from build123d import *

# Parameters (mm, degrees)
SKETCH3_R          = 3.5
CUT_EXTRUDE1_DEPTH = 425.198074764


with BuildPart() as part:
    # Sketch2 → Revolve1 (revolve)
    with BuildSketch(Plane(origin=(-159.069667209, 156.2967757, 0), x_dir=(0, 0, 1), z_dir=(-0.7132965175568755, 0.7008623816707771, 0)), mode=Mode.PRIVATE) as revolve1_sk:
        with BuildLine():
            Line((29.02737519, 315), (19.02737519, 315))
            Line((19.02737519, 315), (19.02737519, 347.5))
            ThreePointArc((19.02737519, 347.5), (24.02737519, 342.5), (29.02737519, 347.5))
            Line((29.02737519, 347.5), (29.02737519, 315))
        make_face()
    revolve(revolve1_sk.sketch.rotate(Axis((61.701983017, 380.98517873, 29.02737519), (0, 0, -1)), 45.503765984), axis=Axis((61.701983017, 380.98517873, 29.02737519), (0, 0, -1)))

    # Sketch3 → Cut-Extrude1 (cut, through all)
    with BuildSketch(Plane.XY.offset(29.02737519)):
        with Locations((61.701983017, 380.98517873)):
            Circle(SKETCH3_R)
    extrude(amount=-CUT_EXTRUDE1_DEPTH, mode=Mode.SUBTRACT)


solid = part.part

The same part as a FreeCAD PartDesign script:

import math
import FreeCAD as App
import Part
import Sketcher
from FreeCAD import Vector
Q = App.Units.Quantity

doc = App.newDocument("Part")
body = doc.addObject("PartDesign::Body", "Body")

sketch1 = body.newObject("Sketcher::SketchObject", "Sketch")
sketch1.Placement = App.Placement(Vector(-159.069667, 156.296776, 0), App.Rotation(Vector(0, 0, 1), Vector(0.700862382, 0.713296518, 0), Vector(-0.713296518, 0.700862382, 0), "ZXY"))
sketch1.addGeometry([
    Part.LineSegment(Vector(19.027375, 315, 0), Vector(29.027375, 315, 0)),
    Part.LineSegment(Vector(29.027375, 315, 0), Vector(29.027375, 347.5, 0)),
    Part.ArcOfCircle(Part.Circle(Vector(24.027375, 347.5, 0), Vector(0, 0, 1), 5), math.radians(180), math.radians(360)),
    Part.LineSegment(Vector(19.027375, 347.5, 0), Vector(19.027375, 315, 0)),
], False)
sketch1.addGeometry(Part.LineSegment(Vector(29.027375, 315, 0), Vector(19.027375, 315, 0)), True)
sketch1.addConstraint([
    Sketcher.Constraint("Coincident", 0, 2, 1, 1),
    Sketcher.Constraint("Tangent", 1, 2, 2, 2),
    Sketcher.Constraint("Tangent", 2, 1, 3, 1),
    Sketcher.Constraint("Coincident", 3, 2, 0, 1),
    Sketcher.Constraint("Horizontal", 0),
    Sketcher.Constraint("Vertical", 1),
    Sketcher.Constraint("Vertical", 3),
    Sketcher.Constraint("Horizontal", 4),
    Sketcher.Constraint("Coincident", 4, 1, 0, 2),
    Sketcher.Constraint("Vertical", 2, 1, 4, 2),
    Sketcher.Constraint("Radius", 2, Q("5 mm")),
    Sketcher.Constraint("DistanceY", 1, 1, 1, 2, Q("32.5 mm")),
    Sketcher.Constraint("DistanceY", -1, 1, 0, 2, Q("315 mm")),
    Sketcher.Constraint("DistanceX", -1, 1, 2, 3, Q("24.027375 mm")),
])
revolution = body.newObject("PartDesign::Revolution", "Revolution")
revolution.Profile = sketch1
revolution.ReferenceAxis = (sketch1, ["Axis0"])
revolution.Angle = 360

sketch2 = body.newObject("Sketcher::SketchObject", "Sketch001")
sketch2.AttachmentSupport = (doc.getObject("XY_Plane"), [""])
sketch2.MapMode = "FlatFace"
sketch2.AttachmentOffset = App.Placement(Vector(0, 0, 29.027375), App.Rotation())
sketch2.addGeometry(Part.Circle(Vector(61.701983, 380.985179, 0), Vector(0, 0, 1), 3.5), False)
sketch2.addConstraint([
    Sketcher.Constraint("Diameter", 0, Q("7 mm")),
    Sketcher.Constraint("DistanceY", -1, 1, 0, 3, Q("380.985179 mm")),
    Sketcher.Constraint("DistanceX", -1, 1, 0, 3, Q("61.701983 mm")),
])
pocket1 = body.newObject("PartDesign::Pocket", "Pocket")
pocket1.Profile = sketch2
pocket1.Type = "ThroughAll"

doc.recompute()
